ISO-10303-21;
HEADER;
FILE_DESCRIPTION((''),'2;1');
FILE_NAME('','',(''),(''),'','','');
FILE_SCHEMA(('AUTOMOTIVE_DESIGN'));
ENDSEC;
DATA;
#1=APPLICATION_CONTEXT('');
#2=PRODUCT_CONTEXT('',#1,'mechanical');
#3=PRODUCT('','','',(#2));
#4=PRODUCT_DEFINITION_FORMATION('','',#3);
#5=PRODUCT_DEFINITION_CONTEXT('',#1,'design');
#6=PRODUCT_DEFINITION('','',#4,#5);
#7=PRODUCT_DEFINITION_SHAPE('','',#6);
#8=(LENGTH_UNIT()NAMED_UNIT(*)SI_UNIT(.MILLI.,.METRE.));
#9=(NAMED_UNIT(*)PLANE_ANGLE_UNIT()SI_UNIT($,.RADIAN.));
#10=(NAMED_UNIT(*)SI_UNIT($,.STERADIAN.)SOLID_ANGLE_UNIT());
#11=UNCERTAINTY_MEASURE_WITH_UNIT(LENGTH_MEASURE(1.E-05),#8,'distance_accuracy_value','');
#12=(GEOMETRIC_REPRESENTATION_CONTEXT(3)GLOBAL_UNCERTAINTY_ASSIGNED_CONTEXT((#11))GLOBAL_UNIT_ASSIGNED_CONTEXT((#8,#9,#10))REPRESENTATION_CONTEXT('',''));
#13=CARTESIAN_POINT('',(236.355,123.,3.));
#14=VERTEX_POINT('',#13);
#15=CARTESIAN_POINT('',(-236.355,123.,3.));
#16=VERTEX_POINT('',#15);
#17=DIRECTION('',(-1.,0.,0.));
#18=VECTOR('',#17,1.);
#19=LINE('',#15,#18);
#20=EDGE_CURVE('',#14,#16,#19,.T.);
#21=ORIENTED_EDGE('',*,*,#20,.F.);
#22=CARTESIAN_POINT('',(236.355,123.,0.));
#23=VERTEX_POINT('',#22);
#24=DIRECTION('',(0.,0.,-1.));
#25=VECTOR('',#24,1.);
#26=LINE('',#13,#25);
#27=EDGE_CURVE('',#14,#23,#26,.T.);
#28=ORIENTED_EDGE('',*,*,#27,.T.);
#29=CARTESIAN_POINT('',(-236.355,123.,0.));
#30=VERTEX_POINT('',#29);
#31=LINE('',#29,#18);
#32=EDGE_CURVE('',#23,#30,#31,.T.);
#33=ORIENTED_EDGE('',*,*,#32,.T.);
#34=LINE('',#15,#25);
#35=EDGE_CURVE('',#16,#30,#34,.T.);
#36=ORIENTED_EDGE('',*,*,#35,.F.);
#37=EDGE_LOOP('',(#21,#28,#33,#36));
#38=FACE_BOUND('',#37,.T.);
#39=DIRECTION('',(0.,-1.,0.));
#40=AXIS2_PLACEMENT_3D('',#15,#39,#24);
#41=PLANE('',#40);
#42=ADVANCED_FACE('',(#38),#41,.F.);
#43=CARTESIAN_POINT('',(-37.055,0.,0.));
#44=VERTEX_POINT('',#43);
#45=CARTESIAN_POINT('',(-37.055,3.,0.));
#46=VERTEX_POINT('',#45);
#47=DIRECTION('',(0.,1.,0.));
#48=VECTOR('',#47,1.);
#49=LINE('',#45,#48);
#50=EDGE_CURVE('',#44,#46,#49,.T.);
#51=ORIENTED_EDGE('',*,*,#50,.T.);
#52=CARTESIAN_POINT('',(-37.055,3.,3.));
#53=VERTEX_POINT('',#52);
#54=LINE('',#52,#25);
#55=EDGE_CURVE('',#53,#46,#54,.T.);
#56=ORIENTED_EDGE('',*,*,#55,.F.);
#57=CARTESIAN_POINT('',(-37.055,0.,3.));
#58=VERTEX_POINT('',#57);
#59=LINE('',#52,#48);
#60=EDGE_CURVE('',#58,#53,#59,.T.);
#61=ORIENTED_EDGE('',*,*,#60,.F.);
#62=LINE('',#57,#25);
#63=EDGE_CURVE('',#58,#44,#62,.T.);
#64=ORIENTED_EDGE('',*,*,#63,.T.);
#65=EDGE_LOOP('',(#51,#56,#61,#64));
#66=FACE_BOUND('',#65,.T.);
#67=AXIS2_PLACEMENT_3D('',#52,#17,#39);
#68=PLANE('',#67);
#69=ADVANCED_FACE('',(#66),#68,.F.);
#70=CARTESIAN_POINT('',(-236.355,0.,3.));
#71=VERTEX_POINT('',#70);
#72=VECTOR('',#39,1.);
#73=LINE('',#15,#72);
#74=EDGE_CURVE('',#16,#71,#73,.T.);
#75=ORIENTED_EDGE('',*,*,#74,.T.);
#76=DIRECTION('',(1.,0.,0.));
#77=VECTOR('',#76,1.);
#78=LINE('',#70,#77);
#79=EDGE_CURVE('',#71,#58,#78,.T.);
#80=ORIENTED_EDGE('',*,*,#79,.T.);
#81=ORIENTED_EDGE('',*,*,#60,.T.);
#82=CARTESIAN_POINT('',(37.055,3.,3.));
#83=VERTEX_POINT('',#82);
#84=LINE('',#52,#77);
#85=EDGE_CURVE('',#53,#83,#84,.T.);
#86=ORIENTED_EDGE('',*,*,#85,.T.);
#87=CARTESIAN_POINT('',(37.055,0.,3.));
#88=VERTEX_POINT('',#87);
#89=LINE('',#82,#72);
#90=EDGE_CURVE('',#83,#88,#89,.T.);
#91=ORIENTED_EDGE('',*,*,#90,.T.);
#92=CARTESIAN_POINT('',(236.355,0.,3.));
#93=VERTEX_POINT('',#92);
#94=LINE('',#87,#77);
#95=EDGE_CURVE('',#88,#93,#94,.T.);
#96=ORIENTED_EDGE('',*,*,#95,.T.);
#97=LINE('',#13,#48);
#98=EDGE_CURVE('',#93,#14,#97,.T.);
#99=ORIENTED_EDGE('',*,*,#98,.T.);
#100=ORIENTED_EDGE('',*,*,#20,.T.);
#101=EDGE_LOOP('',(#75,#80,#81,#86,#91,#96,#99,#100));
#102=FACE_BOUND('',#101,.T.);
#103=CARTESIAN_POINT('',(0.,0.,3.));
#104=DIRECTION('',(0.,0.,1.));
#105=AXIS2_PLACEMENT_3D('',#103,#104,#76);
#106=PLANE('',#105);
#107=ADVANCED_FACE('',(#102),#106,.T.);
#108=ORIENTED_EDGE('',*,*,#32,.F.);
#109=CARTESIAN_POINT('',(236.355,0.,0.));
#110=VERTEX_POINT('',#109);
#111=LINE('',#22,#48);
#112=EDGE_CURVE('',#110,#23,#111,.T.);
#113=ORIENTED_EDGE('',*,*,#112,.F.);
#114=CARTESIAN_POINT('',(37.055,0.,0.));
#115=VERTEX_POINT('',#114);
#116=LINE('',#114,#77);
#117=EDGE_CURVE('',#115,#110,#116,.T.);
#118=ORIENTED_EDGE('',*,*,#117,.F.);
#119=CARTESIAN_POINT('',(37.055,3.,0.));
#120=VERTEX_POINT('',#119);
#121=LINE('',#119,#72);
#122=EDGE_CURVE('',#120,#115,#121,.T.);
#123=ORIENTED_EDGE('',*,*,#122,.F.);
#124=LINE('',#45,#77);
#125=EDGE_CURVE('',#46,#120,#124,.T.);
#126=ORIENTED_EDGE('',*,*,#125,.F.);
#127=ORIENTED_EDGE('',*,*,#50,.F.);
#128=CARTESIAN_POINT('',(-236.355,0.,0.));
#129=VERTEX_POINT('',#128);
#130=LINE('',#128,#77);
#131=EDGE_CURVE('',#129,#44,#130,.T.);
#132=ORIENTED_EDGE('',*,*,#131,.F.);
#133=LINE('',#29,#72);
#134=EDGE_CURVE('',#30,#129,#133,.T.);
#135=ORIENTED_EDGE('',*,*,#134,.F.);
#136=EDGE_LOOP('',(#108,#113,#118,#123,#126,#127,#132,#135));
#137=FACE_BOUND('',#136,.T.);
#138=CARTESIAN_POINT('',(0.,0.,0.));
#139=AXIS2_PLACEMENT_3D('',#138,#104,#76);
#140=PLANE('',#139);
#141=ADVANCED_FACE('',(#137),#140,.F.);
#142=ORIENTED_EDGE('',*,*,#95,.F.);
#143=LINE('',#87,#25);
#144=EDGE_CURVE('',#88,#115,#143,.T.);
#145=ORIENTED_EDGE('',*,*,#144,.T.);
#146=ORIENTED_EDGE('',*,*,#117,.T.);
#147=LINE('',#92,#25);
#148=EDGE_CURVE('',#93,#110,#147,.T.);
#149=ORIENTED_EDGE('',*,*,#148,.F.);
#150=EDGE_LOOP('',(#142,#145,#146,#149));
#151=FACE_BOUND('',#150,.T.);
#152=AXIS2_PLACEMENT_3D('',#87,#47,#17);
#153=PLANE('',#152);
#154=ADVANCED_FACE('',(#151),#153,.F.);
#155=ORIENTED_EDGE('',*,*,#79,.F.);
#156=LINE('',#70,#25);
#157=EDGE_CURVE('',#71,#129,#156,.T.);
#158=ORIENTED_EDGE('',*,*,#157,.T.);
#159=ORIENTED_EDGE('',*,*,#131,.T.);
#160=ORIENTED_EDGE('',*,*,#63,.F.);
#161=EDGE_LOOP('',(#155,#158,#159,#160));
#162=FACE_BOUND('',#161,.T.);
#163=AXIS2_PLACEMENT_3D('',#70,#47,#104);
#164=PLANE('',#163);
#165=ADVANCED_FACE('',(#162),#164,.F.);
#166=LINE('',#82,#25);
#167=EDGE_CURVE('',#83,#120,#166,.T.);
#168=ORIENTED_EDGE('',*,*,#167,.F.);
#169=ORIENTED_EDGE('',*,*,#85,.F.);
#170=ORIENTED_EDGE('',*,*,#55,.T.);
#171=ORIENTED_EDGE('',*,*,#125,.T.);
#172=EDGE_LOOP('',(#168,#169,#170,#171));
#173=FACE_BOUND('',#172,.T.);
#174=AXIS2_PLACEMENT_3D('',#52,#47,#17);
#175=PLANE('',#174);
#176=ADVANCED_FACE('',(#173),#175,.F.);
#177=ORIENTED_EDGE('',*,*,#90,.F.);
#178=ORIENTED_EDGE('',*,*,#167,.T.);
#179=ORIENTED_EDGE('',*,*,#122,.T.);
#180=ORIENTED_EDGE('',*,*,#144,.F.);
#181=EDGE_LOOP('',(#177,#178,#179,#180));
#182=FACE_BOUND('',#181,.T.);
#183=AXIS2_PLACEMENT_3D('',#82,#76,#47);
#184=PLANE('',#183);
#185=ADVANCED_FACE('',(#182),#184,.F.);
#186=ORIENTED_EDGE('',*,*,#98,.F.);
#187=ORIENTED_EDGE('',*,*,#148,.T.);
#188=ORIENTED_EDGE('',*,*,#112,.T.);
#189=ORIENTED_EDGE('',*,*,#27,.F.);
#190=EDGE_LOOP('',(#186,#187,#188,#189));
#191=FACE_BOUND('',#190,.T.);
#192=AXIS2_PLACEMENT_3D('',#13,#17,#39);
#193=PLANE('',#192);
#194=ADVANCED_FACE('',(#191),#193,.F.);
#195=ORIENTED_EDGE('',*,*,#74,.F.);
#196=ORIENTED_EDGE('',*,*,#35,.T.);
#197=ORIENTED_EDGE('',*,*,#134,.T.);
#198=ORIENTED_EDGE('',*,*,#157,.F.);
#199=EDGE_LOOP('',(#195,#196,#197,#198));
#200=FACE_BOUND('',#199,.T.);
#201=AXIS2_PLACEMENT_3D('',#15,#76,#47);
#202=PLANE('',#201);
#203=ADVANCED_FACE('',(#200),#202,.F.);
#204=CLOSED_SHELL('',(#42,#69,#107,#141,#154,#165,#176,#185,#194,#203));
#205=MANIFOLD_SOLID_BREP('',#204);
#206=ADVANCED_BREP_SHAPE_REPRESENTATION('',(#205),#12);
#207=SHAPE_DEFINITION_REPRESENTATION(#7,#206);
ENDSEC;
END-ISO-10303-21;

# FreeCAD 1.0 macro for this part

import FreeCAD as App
import Part
import Sketcher
Q = App.Units.Quantity

doc = App.newDocument("Part")
body = doc.addObject("PartDesign::Body", "Body")

# Sketch on XY plane
sketch1 = body.newObject("Sketcher::SketchObject", "Sketch")
sketch1.AttachmentSupport = (doc.getObject("XY_Plane"), [""])
sketch1.MapMode = "FlatFace"
sketch1.addGeometry([
    Part.LineSegment(App.Vector(-37.1, 3, 0), App.Vector(37.1, 3, 0)),  # 0
    Part.LineSegment(App.Vector(37.1, 3, 0), App.Vector(37.1, 0, 0)),  # 1
    Part.LineSegment(App.Vector(37.1, 0, 0), App.Vector(236.4, 0, 0)),  # 2
    Part.LineSegment(App.Vector(236.4, 0, 0), App.Vector(236.4, 123, 0)),  # 3
    Part.LineSegment(App.Vector(236.4, 123, 0), App.Vector(-236.4, 123, 0)),  # 4
    Part.LineSegment(App.Vector(-236.4, 123, 0), App.Vector(-236.4, 0, 0)),  # 5
    Part.LineSegment(App.Vector(-236.4, 0, 0), App.Vector(-37.1, 0, 0)),  # 6
    Part.LineSegment(App.Vector(-37.1, 0, 0), App.Vector(-37.1, 3, 0)),  # 7
], False)
sketch1.addConstraint([
    Sketcher.Constraint("Coincident", 0, 2, 1, 1),
    Sketcher.Constraint("Coincident", 1, 2, 2, 1),
    Sketcher.Constraint("Coincident", 2, 2, 3, 1),
    Sketcher.Constraint("Coincident", 3, 2, 4, 1),
    Sketcher.Constraint("Coincident", 4, 2, 5, 1),
    Sketcher.Constraint("Coincident", 5, 2, 6, 1),
    Sketcher.Constraint("Coincident", 6, 2, 7, 1),
    Sketcher.Constraint("Coincident", 7, 2, 0, 1),
    Sketcher.Constraint("Horizontal", 0),
    Sketcher.Constraint("Vertical", 1),
    Sketcher.Constraint("Horizontal", 2),
    Sketcher.Constraint("Vertical", 3),
    Sketcher.Constraint("Horizontal", 4),
    Sketcher.Constraint("Vertical", 5),
    Sketcher.Constraint("Horizontal", 6),
    Sketcher.Constraint("Vertical", 7),
    Sketcher.Constraint("Symmetric", 2, 2, 5, 2, -1, 1),
    Sketcher.Constraint("Symmetric", 1, 2, 6, 2, -2),
    Sketcher.Constraint("DistanceY", 1, 2, 1, 1, Q("3 mm")),
    Sketcher.Constraint("DistanceY", 3, 1, 3, 2, Q("123 mm")),
    Sketcher.Constraint("DistanceX", 2, 1, 2, 2, Q("199.3 mm")),
    Sketcher.Constraint("DistanceX", 0, 1, 0, 2, Q("74.11 mm")),
])
pad1 = body.newObject("PartDesign::Pad", "Pad")
pad1.Profile = sketch1
pad1.Length = 3

doc.recompute()
